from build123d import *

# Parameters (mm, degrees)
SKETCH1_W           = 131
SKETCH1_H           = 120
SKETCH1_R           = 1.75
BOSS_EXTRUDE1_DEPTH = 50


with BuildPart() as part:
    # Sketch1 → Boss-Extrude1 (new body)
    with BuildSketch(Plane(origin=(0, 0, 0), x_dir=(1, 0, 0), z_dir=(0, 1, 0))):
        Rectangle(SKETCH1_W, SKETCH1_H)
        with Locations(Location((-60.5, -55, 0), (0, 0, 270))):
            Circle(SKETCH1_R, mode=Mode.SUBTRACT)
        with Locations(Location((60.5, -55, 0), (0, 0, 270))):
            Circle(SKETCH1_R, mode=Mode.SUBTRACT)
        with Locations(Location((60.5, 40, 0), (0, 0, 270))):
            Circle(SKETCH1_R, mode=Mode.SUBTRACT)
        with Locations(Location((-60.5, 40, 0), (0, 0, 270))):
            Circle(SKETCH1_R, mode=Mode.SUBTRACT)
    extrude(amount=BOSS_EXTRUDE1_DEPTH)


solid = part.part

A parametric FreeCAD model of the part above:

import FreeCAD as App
import Part
import Sketcher
from FreeCAD import Vector

doc = App.newDocument("Part")
body = doc.addObject("PartDesign::Body", "Body")

# Sketch on XZ plane
sketch1 = doc.addObject("Sketcher::SketchObject", "Sketch")
body.addObject(sketch1)
sketch1.AttachmentSupport = (doc.XZ_Plane, [""])
sketch1.MapMode = "FlatFace"
sketch1.addGeometry([
    Part.LineSegment(Vector(-65.5, -60, 0), Vector(-65.5, 60, 0)),  # 0
    Part.LineSegment(Vector(-65.5, 60, 0), Vector(65.5, 60, 0)),  # 1
    Part.LineSegment(Vector(65.5, 60, 0), Vector(65.5, -60, 0)),  # 2
    Part.LineSegment(Vector(65.5, -60, 0), Vector(-65.5, -60, 0)),  # 3
    Part.Circle(Vector(-60.5, 55, 0), Vector(0, 0, 1), 1.8),  # 4
    Part.Circle(Vector(60.5, 55, 0), Vector(0, 0, 1), 1.8),  # 5
    Part.Circle(Vector(-60.5, -40, 0), Vector(0, 0, 1), 1.8),  # 6
    Part.Circle(Vector(60.5, -40, 0), Vector(0, 0, 1), 1.8),  # 7
], False)
sketch1.addConstraint([
    Sketcher.Constraint("Coincident", 0, 2, 1, 1),
    Sketcher.Constraint("Coincident", 1, 2, 2, 1),
    Sketcher.Constraint("Coincident", 2, 2, 3, 1),
    Sketcher.Constraint("Coincident", 3, 2, 0, 1),
    Sketcher.Constraint("Vertical", 0),
    Sketcher.Constraint("Horizontal", 1),
    Sketcher.Constraint("Vertical", 2),
    Sketcher.Constraint("Horizontal", 3),
    Sketcher.Constraint("Equal", 4, 5),
    Sketcher.Constraint("Equal", 5, 6),
    Sketcher.Constraint("Equal", 6, 7),
    Sketcher.Constraint("Symmetric", 0, 2, 2, 2, -1, 1),
    Sketcher.Constraint("Symmetric", 4, 3, 5, 3, -2),
    Sketcher.Constraint("Symmetric", 6, 3, 7, 3, -2),
    Sketcher.Constraint("Vertical", 4, 3, 6, 3),
    Sketcher.Constraint("Diameter", 4, 3.5),
    Sketcher.Constraint("DistanceX", 1, 1, 1, 2, 131.0),
    Sketcher.Constraint("DistanceY", 0, 1, 0, 2, 120.0),
    Sketcher.Constraint("DistanceY", -1, 1, 4, 3, 55.0),
    Sketcher.Constraint("DistanceY", 6, 3, -1, 1, 40.0),
    Sketcher.Constraint("DistanceX", 4, 3, 5, 3, 121.0),
])
pad1 = doc.addObject("PartDesign::Pad", "Pad")
body.addObject(pad1)
pad1.Profile = sketch1
pad1.Length = 50
pad1.Reversed = True

doc.recompute()
